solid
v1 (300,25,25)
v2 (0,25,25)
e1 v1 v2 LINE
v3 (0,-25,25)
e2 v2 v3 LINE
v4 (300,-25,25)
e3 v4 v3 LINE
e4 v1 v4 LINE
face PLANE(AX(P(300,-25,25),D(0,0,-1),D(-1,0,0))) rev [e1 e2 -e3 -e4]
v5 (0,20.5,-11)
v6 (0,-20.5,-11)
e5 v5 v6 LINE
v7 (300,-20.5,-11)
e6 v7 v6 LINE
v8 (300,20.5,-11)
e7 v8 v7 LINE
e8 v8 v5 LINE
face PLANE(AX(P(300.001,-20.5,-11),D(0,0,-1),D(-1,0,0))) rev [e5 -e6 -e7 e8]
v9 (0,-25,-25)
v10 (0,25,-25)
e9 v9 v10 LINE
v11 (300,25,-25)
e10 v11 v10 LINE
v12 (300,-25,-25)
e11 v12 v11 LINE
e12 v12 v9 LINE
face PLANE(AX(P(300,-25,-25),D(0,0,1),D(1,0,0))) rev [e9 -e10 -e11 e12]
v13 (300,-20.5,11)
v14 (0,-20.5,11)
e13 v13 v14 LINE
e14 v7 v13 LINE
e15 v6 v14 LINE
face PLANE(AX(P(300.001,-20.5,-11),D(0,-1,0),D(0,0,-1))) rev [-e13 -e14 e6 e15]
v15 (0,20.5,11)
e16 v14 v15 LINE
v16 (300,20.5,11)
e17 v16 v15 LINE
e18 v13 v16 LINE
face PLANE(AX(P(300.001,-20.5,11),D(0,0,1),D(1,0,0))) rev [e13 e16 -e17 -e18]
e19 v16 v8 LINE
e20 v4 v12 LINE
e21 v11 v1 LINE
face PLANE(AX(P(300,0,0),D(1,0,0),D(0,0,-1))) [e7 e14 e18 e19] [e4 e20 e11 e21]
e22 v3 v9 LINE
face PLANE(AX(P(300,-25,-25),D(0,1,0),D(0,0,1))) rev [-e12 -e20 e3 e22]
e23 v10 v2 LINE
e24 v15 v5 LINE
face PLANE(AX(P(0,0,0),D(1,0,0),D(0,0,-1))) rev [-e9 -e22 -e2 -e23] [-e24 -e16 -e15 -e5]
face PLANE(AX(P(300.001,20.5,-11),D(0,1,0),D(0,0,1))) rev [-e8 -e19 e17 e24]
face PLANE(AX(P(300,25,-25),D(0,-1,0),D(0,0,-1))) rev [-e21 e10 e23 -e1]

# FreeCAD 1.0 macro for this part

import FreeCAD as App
import Part
import Sketcher

doc = App.newDocument("Part")
body = doc.addObject("PartDesign::Body", "Body")

# Sketch on YZ plane
sketch1 = body.newObject("Sketcher::SketchObject", "Sketch")
sketch1.AttachmentSupport = (doc.getObject("YZ_Plane"), [""])
sketch1.MapMode = "FlatFace"
sketch1.addGeometry([
    Part.LineSegment(App.Vector(25, 25, 0), App.Vector(-25, 25, 0)),
    Part.LineSegment(App.Vector(-25, 25, 0), App.Vector(-25, -25, 0)),
    Part.LineSegment(App.Vector(-25, -25, 0), App.Vector(25, -25, 0)),
    Part.LineSegment(App.Vector(25, -25, 0), App.Vector(25, 25, 0)),
], False)
sketch1.addConstraint([
    Sketcher.Constraint("Coincident", 0, 2, 1, 1),
    Sketcher.Constraint("Coincident", 1, 2, 2, 1),
    Sketcher.Constraint("Coincident", 2, 2, 3, 1),
    Sketcher.Constraint("Coincident", 3, 2, 0, 1),
    Sketcher.Constraint("Horizontal", 0),
    Sketcher.Constraint("Vertical", 1),
    Sketcher.Constraint("Horizontal", 2),
    Sketcher.Constraint("Vertical", 3),
    Sketcher.Constraint("Symmetric", 0, 2, 2, 2, -1, 1),
    Sketcher.Constraint("Equal", 2, 1),
    Sketcher.Constraint("DistanceX", 0, 2, 0, 1, 50.0),
])
pad1 = body.newObject("PartDesign::Pad", "Pad")
pad1.Profile = sketch1
pad1.Length = 300

# Sketch on YZ plane
sketch2 = body.newObject("Sketcher::SketchObject", "Sketch001")
sketch2.AttachmentSupport = (doc.getObject("YZ_Plane"), [""])
sketch2.MapMode = "FlatFace"
sketch2.addGeometry([
    Part.LineSegment(App.Vector(20, -11, 0), App.Vector(-20, -11, 0)),
    Part.LineSegment(App.Vector(-20, -11, 0), App.Vector(-20, 11, 0)),
    Part.LineSegment(App.Vector(-20, 11, 0), App.Vector(20, 11, 0)),
    Part.LineSegment(App.Vector(20, 11, 0), App.Vector(20, -11, 0)),
], False)
sketch2.addConstraint([
    Sketcher.Constraint("Coincident", 0, 2, 1, 1),
    Sketcher.Constraint("Coincident", 1, 2, 2, 1),
    Sketcher.Constraint("Coincident", 2, 2, 3, 1),
    Sketcher.Constraint("Coincident", 3, 2, 0, 1),
    Sketcher.Constraint("Horizontal", 0),
    Sketcher.Constraint("Vertical", 1),
    Sketcher.Constraint("Horizontal", 2),
    Sketcher.Constraint("Vertical", 3),
    Sketcher.Constraint("Symmetric", 0, 2, 2, 2, -1, 1),
    Sketcher.Constraint("DistanceX", 0, 2, 0, 1, 41.0),
    Sketcher.Constraint("DistanceY", 1, 1, 1, 2, 22.0),
])
pocket1 = body.newObject("PartDesign::Pocket", "Pocket")
pocket1.Profile = sketch2
pocket1.Type = "UpToFirst"
pocket1.Reversed = True

doc.recompute()
